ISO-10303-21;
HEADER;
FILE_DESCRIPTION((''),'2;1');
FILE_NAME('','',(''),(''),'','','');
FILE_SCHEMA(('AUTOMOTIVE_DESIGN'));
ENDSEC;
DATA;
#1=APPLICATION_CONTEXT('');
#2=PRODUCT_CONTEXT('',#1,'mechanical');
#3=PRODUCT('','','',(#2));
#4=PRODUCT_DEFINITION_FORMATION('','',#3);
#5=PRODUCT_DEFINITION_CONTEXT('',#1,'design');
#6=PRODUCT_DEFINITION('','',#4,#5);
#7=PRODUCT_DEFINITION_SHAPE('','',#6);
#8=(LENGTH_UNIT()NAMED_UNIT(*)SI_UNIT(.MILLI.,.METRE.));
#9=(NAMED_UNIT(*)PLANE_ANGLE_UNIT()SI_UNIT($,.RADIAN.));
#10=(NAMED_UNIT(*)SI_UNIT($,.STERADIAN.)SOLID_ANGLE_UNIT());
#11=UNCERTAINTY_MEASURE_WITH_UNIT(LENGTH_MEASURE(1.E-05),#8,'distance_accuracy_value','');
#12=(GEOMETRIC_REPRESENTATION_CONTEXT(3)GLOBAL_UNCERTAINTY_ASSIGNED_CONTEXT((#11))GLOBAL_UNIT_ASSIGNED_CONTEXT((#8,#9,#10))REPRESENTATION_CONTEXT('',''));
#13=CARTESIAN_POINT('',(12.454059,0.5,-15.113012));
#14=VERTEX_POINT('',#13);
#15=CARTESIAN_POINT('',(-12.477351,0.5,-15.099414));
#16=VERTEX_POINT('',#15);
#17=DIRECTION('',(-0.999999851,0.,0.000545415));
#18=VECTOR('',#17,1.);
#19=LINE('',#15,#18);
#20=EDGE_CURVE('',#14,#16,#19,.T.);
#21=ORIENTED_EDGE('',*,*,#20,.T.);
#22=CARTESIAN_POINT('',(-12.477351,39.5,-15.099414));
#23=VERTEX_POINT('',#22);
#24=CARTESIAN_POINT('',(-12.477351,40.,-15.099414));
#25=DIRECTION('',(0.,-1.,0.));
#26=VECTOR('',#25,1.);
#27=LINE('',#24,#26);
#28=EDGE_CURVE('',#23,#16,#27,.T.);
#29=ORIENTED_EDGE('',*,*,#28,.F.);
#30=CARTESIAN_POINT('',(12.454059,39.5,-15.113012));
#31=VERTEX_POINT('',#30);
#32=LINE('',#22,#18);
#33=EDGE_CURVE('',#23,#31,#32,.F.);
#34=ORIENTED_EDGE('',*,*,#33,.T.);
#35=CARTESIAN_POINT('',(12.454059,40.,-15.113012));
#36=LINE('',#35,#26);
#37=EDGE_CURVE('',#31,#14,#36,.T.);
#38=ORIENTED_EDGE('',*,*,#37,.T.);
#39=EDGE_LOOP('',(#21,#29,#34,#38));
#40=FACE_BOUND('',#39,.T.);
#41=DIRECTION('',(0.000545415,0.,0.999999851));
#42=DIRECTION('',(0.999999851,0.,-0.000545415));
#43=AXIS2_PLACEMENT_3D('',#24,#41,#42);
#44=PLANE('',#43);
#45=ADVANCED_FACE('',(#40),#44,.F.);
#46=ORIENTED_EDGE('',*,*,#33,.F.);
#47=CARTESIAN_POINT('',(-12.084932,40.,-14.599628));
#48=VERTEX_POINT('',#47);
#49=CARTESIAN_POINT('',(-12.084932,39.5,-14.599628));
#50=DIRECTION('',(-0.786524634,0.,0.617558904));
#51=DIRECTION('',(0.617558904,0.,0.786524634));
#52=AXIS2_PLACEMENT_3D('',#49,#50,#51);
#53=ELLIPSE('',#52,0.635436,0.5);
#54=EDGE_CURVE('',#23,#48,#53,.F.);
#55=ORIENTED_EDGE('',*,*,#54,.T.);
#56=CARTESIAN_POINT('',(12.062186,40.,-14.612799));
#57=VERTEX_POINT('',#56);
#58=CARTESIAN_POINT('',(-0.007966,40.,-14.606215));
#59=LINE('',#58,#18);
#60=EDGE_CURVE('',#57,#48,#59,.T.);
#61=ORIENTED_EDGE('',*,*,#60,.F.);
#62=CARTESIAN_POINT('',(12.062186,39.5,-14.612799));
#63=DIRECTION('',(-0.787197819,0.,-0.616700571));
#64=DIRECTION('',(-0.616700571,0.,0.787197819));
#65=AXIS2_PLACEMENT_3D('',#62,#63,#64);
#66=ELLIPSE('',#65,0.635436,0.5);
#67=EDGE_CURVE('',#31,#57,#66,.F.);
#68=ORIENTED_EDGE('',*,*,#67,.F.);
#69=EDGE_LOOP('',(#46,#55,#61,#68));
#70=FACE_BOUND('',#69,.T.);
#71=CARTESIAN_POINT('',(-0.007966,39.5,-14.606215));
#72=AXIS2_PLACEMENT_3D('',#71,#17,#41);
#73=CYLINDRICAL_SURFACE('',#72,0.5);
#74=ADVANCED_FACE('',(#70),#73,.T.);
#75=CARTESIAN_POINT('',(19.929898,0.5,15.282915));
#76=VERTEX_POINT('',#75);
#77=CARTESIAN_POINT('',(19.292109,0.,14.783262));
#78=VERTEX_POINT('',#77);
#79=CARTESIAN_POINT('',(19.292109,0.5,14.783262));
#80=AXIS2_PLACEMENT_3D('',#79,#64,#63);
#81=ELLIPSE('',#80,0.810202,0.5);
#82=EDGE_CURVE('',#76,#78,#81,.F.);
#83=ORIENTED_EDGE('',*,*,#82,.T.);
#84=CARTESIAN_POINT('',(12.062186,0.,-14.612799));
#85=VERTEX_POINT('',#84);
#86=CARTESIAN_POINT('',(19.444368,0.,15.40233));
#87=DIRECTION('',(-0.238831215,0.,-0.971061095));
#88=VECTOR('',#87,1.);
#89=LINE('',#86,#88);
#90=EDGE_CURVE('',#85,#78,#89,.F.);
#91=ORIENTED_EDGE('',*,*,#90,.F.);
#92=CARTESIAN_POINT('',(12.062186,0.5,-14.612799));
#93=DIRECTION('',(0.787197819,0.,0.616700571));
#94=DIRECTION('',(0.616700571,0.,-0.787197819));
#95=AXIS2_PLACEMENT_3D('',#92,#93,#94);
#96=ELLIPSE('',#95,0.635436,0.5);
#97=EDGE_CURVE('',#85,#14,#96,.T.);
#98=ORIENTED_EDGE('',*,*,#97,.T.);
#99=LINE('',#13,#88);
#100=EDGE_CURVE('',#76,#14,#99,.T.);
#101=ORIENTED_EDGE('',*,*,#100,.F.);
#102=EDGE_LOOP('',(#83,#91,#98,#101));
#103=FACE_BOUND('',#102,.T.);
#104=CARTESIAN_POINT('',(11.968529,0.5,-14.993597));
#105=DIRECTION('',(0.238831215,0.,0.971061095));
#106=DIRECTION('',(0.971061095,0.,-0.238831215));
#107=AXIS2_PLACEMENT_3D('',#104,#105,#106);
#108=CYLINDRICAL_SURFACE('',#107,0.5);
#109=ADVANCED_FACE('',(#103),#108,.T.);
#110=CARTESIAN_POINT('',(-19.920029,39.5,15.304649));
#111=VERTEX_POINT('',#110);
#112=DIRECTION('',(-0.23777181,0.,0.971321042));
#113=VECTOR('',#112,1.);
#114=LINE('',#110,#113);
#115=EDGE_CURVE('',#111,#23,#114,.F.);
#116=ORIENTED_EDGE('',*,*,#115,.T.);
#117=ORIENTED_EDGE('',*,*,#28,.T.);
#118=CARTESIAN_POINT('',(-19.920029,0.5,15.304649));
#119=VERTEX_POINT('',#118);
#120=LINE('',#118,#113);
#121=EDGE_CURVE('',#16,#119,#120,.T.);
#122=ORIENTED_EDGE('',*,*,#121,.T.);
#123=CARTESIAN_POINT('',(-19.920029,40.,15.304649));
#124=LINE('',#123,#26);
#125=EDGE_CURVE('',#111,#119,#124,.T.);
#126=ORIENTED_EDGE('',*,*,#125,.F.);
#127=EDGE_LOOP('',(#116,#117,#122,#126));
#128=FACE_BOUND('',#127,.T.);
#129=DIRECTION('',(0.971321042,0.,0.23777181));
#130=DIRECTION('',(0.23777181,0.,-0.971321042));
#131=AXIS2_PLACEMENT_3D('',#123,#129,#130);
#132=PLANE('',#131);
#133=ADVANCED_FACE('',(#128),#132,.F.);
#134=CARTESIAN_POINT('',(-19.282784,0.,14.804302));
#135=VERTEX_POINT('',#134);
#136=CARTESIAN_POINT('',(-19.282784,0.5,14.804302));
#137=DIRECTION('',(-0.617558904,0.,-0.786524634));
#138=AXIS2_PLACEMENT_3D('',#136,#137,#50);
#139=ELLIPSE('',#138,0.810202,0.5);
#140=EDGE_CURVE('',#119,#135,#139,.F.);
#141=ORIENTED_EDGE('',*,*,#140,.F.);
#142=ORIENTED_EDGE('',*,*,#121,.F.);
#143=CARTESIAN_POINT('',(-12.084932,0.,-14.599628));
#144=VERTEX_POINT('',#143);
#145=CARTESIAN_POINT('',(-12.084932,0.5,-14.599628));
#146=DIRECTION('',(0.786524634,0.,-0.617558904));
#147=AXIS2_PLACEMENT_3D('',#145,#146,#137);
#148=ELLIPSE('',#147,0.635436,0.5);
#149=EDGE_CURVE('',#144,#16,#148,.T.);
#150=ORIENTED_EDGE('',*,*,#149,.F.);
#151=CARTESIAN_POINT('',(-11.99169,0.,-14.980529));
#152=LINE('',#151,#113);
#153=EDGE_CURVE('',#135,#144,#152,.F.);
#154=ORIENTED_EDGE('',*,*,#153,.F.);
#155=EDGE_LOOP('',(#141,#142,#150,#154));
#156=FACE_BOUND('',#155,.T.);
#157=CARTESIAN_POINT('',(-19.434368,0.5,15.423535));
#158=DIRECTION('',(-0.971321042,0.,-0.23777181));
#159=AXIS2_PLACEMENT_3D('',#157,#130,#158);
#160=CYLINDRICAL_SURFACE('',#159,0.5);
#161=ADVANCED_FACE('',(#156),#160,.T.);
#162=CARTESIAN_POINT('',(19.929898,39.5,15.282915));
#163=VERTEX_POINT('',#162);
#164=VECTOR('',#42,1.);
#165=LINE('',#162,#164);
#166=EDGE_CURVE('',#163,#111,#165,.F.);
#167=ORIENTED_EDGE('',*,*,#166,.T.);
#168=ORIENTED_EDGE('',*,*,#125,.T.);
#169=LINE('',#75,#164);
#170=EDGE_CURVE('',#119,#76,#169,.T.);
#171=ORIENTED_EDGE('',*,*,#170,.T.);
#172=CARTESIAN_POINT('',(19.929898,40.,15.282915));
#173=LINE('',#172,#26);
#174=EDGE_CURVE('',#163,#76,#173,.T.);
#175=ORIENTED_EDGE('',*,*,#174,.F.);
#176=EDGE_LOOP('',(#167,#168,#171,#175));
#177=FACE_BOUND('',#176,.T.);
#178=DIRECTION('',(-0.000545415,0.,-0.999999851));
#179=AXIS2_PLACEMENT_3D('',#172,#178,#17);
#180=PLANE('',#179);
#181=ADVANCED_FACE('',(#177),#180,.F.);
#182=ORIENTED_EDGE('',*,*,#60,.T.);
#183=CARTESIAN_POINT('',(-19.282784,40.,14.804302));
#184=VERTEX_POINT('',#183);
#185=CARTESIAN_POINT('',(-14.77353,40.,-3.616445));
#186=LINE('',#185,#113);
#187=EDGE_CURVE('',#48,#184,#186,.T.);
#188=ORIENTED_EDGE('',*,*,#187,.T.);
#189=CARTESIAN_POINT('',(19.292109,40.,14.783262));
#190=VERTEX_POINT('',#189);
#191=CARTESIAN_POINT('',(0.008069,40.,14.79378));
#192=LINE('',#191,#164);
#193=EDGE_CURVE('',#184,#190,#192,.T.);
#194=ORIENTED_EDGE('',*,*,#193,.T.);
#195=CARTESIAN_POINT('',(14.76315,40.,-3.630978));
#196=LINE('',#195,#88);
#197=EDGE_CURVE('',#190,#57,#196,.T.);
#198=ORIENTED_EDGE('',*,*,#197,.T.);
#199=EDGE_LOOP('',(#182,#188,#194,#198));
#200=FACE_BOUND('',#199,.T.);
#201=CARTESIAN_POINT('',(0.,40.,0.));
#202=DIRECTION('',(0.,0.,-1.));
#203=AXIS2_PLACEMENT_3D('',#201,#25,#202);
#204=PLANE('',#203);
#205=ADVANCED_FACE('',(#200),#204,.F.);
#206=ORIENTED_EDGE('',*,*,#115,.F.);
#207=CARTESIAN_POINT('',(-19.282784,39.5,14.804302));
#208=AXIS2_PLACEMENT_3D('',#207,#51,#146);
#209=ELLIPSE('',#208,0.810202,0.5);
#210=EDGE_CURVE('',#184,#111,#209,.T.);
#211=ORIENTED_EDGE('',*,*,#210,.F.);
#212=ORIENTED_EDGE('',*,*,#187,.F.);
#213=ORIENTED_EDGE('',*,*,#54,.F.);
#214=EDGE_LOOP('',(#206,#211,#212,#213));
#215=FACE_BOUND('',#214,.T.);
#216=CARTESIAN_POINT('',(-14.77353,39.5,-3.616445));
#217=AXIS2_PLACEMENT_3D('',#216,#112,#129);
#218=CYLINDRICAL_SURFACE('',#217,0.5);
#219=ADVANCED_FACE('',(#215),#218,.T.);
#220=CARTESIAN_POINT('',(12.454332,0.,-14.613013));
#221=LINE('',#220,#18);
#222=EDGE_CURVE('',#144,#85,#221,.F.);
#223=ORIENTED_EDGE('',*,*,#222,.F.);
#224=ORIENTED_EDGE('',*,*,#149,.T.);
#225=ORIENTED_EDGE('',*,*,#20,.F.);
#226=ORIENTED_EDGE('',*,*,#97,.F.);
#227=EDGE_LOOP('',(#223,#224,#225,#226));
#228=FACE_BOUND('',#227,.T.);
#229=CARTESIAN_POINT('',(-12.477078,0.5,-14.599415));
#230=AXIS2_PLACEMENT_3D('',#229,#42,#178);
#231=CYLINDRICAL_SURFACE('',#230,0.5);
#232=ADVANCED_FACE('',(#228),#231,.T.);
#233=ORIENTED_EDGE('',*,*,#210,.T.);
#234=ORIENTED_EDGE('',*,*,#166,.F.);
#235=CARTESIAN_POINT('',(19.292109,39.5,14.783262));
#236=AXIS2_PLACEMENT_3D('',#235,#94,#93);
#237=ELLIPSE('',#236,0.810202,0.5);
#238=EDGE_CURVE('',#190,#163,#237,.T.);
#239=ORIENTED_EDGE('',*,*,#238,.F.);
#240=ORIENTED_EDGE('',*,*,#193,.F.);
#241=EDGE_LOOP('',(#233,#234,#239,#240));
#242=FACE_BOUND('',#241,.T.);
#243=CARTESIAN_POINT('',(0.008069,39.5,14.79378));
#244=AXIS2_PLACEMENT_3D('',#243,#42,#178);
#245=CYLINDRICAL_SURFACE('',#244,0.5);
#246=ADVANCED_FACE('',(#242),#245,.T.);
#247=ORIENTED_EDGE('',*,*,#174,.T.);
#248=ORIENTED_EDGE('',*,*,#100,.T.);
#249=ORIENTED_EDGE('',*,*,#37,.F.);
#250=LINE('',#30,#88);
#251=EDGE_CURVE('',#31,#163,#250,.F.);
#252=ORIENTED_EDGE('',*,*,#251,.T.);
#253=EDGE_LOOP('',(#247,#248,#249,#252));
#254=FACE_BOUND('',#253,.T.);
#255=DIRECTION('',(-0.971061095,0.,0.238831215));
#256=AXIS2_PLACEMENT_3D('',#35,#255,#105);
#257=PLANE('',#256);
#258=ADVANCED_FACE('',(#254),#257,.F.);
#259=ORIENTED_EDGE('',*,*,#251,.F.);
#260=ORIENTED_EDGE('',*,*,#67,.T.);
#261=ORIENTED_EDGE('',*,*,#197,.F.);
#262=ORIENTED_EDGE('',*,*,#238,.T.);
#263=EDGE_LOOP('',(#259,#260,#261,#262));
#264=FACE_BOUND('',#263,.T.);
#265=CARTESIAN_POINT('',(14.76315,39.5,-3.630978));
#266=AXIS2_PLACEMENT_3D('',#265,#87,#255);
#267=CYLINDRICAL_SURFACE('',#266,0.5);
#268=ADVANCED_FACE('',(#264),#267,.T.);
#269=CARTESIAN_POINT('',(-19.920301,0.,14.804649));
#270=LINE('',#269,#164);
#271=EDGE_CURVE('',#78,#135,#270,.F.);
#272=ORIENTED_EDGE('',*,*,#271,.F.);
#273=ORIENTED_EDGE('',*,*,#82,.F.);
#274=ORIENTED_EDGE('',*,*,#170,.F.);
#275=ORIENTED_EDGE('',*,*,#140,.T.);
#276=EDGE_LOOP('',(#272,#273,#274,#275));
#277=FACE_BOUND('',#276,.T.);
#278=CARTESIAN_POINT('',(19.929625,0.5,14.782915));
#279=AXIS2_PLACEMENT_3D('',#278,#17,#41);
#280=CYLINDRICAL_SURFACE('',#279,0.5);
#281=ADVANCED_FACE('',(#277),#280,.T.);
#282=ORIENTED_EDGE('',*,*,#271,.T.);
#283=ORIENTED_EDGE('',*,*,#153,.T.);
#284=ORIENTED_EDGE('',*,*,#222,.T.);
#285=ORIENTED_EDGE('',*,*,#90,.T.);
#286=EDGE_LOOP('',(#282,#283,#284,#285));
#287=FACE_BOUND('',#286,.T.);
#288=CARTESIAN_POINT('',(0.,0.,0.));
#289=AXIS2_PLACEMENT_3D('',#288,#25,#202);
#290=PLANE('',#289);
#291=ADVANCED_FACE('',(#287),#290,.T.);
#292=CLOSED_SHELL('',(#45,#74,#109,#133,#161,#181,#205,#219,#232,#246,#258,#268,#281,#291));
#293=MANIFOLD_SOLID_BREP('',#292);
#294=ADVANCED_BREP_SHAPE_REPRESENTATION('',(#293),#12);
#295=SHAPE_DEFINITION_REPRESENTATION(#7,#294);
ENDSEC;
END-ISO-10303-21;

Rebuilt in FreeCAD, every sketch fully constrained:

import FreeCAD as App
import Part
import Sketcher
Q = App.Units.Quantity


def edges_at(feature, points):
    """Names of the edges that pass closest to the given points."""
    edges = feature.Shape.Edges
    near = lambda p: min(range(len(edges)), key=lambda i: edges[i].distToShape(Part.Vertex(*p))[0])
    return sorted({f"Edge{near(p) + 1}" for p in points})


def add_polygon(sketch, points):
    """Adds a closed chain of lines whose ends are joined by coincident constraints."""
    first, n = sketch.GeometryCount, len(points)
    for a, b in zip(points, points[1:] + points[:1]):
        sketch.addGeometry(Part.LineSegment(App.Vector(*a, 0), App.Vector(*b, 0)), False)
    for i in range(n):
        sketch.addConstraint(Sketcher.Constraint("Coincident", first + i, 2, first + (i + 1) % n, 1))

doc = App.newDocument("Part")
body = doc.addObject("PartDesign::Body", "Body")

# Sketch on XZ plane
sketch1 = body.newObject("Sketcher::SketchObject", "Sketch")
sketch1.AttachmentSupport = (doc.getObject("XZ_Plane"), [""])
sketch1.MapMode = "FlatFace"
add_polygon(sketch1, [(-20, 15), (20, 15), (12, -15), (-12, -15)])  # lines 0-3
sketch1.addConstraint(Sketcher.Constraint("Parallel", 0, 2))
sketch1.addConstraint(Sketcher.Constraint("Equal", 1, 3))
sketch1.addConstraint(Sketcher.Constraint("DistanceX", -1, 1, 0, 2, Q("19.929898 mm")))
sketch1.addConstraint(Sketcher.Constraint("DistanceX", -1, 1, 1, 2, Q("12.454059 mm")))
sketch1.addConstraint(Sketcher.Constraint("DistanceX", 2, 2, -1, 1, Q("12.477351 mm")))
sketch1.addConstraint(Sketcher.Constraint("DistanceX", 3, 2, -1, 1, Q("19.920029 mm")))
sketch1.addConstraint(Sketcher.Constraint("DistanceY", -1, 1, 3, 2, Q("15.304649 mm")))
sketch1.addConstraint(Sketcher.Constraint("DistanceY", 2, 2, 0, 2, Q("30.382329 mm")))
pad1 = body.newObject("PartDesign::Pad", "Pad")
pad1.Profile = sketch1
pad1.Length = 40
pad1.Reversed = True
doc.recompute()

fillet = body.newObject("PartDesign::Fillet", "Fillet")
fillet.Base = (pad1, edges_at(pad1, [
    (-16.199, 40, 0.103),
    (0.005, 40, 15.294),
    (16.192, 40, 0.085),
    (0.005, 0, 15.294),
    (-16.199, 0, 0.103),
    (-0.012, 0, -15.106),
    (16.192, 0, 0.085),
    (-0.012, 40, -15.106),
]))
fillet.Radius = 0.5

doc.recompute()
